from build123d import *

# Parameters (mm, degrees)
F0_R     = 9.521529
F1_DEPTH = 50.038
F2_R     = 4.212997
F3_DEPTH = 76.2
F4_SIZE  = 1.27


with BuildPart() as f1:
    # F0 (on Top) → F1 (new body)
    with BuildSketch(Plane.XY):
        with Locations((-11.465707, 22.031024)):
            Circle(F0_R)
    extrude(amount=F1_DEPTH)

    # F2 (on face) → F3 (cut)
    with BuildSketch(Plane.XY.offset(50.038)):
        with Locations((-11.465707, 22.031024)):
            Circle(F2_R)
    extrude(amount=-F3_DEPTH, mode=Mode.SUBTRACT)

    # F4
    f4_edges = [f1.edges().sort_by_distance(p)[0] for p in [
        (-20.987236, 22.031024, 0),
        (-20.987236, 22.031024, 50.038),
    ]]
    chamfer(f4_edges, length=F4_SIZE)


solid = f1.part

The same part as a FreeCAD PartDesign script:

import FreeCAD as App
import Part
import Sketcher
from FreeCAD import Vector
Q = App.Units.Quantity


def edges_at(feature, points):
    """Names of the edges that pass closest to the given points."""
    edges = feature.Shape.Edges
    near = lambda p: min(range(len(edges)), key=lambda i: edges[i].distToShape(Part.Vertex(*p))[0])
    return sorted({f"Edge{near(p) + 1}" for p in points})

doc = App.newDocument("Part")
body = doc.addObject("PartDesign::Body", "Body")

sketch1 = body.newObject("Sketcher::SketchObject", "Sketch")
sketch1.AttachmentSupport = (doc.getObject("XY_Plane"), [""])
sketch1.MapMode = "FlatFace"
sketch1.addGeometry(Part.Circle(Vector(-11.465707, 22.031024, 0), Vector(0, 0, 1), 9.521529), False)
sketch1.addConstraint([
    Sketcher.Constraint("Diameter", 0, 19.043058),
    Sketcher.Constraint("DistanceX", 0, 3, -1, 1, 11.465707),
    Sketcher.Constraint("DistanceY", -1, 1, 0, 3, 22.031024),
])
pad1 = body.newObject("PartDesign::Pad", "Pad")
pad1.Profile = sketch1
pad1.Length = Q("1.97 in")

sketch2 = body.newObject("Sketcher::SketchObject", "Sketch001")
sketch2.AttachmentSupport = (doc.getObject("XY_Plane"), [""])
sketch2.MapMode = "FlatFace"
sketch2.AttachmentOffset = App.Placement(Vector(0, 0, 1.97 * 25.4), App.Rotation())
sketch2.addGeometry(Part.Circle(Vector(-11.465707, 22.031024, 0), Vector(0, 0, 1), 4.212997), False)
sketch2.addConstraint([
    Sketcher.Constraint("Diameter", 0, 8.425994),
    Sketcher.Constraint("DistanceX", 0, 3, -1, 1, 11.465707),
    Sketcher.Constraint("DistanceY", -1, 1, 0, 3, 22.031024),
])
pocket1 = body.newObject("PartDesign::Pocket", "Pocket")
pocket1.Profile = sketch2
pocket1.Length = Q("3 in")
doc.recompute()

chamfer = body.newObject("PartDesign::Chamfer", "Chamfer")
chamfer.Base = (pocket1, edges_at(pocket1, [(-20.987, 22.031, 0), (-20.987, 22.031, 50.038)]))
chamfer.Size = Q("0.05 in")

doc.recompute()
